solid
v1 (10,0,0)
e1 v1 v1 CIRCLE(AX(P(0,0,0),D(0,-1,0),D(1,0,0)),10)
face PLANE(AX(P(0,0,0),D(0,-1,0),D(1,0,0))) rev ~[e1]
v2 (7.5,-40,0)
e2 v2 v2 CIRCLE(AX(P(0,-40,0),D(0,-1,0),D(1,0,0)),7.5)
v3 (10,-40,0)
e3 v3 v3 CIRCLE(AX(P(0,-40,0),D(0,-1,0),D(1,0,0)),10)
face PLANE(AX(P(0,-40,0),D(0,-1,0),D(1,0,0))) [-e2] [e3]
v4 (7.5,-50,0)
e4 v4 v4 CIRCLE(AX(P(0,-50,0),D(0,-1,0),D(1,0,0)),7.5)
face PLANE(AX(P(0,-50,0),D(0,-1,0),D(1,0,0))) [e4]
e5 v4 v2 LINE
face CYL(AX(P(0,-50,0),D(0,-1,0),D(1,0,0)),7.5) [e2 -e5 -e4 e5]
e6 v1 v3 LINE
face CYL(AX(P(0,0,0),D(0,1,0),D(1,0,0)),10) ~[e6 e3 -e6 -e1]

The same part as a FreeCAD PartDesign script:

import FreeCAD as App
import Part
import Sketcher

V = App.Vector
Q = App.Units.Quantity

doc = App.newDocument("Part")
body = doc.addObject("PartDesign::Body", "Body")

sketch1 = body.newObject("Sketcher::SketchObject", "Sketch")
sketch1.AttachmentSupport = (doc.getObject("XZ_Plane"), [""])
sketch1.MapMode = "FlatFace"
sketch1.addGeometry(Part.Circle(V(0, 0, 0), V(0, 0, 1), 10), False)
sketch1.addConstraint([
    Sketcher.Constraint("Coincident", 0, 3, -1, 1),
    Sketcher.Constraint("Diameter", 0, Q("20 mm")),
])
pad1 = body.newObject("PartDesign::Pad", "Pad")
pad1.Profile = sketch1
pad1.Length = 50

sketch2 = body.newObject("Sketcher::SketchObject", "Sketch001")
sketch2.AttachmentSupport = (doc.getObject("XZ_Plane"), [""])
sketch2.MapMode = "FlatFace"
sketch2.AttachmentOffset = App.Placement(V(0, 0, 50), App.Rotation())
sketch2.addGeometry([
    Part.Circle(V(0, 0, 0), V(0, 0, 1), 10),
    Part.Circle(V(0, 0, 0), V(0, 0, 1), 8),
], False)
sketch2.addConstraint([
    Sketcher.Constraint("Coincident", 0, 3, -1, 1),
    Sketcher.Constraint("Coincident", 1, 3, -1, 1),
    Sketcher.Constraint("Diameter", 0, Q("20 mm")),
    Sketcher.Constraint("Diameter", 1, Q("15 mm")),
])
pocket1 = body.newObject("PartDesign::Pocket", "Pocket")
pocket1.Profile = sketch2
pocket1.Length = 10

doc.recompute()
